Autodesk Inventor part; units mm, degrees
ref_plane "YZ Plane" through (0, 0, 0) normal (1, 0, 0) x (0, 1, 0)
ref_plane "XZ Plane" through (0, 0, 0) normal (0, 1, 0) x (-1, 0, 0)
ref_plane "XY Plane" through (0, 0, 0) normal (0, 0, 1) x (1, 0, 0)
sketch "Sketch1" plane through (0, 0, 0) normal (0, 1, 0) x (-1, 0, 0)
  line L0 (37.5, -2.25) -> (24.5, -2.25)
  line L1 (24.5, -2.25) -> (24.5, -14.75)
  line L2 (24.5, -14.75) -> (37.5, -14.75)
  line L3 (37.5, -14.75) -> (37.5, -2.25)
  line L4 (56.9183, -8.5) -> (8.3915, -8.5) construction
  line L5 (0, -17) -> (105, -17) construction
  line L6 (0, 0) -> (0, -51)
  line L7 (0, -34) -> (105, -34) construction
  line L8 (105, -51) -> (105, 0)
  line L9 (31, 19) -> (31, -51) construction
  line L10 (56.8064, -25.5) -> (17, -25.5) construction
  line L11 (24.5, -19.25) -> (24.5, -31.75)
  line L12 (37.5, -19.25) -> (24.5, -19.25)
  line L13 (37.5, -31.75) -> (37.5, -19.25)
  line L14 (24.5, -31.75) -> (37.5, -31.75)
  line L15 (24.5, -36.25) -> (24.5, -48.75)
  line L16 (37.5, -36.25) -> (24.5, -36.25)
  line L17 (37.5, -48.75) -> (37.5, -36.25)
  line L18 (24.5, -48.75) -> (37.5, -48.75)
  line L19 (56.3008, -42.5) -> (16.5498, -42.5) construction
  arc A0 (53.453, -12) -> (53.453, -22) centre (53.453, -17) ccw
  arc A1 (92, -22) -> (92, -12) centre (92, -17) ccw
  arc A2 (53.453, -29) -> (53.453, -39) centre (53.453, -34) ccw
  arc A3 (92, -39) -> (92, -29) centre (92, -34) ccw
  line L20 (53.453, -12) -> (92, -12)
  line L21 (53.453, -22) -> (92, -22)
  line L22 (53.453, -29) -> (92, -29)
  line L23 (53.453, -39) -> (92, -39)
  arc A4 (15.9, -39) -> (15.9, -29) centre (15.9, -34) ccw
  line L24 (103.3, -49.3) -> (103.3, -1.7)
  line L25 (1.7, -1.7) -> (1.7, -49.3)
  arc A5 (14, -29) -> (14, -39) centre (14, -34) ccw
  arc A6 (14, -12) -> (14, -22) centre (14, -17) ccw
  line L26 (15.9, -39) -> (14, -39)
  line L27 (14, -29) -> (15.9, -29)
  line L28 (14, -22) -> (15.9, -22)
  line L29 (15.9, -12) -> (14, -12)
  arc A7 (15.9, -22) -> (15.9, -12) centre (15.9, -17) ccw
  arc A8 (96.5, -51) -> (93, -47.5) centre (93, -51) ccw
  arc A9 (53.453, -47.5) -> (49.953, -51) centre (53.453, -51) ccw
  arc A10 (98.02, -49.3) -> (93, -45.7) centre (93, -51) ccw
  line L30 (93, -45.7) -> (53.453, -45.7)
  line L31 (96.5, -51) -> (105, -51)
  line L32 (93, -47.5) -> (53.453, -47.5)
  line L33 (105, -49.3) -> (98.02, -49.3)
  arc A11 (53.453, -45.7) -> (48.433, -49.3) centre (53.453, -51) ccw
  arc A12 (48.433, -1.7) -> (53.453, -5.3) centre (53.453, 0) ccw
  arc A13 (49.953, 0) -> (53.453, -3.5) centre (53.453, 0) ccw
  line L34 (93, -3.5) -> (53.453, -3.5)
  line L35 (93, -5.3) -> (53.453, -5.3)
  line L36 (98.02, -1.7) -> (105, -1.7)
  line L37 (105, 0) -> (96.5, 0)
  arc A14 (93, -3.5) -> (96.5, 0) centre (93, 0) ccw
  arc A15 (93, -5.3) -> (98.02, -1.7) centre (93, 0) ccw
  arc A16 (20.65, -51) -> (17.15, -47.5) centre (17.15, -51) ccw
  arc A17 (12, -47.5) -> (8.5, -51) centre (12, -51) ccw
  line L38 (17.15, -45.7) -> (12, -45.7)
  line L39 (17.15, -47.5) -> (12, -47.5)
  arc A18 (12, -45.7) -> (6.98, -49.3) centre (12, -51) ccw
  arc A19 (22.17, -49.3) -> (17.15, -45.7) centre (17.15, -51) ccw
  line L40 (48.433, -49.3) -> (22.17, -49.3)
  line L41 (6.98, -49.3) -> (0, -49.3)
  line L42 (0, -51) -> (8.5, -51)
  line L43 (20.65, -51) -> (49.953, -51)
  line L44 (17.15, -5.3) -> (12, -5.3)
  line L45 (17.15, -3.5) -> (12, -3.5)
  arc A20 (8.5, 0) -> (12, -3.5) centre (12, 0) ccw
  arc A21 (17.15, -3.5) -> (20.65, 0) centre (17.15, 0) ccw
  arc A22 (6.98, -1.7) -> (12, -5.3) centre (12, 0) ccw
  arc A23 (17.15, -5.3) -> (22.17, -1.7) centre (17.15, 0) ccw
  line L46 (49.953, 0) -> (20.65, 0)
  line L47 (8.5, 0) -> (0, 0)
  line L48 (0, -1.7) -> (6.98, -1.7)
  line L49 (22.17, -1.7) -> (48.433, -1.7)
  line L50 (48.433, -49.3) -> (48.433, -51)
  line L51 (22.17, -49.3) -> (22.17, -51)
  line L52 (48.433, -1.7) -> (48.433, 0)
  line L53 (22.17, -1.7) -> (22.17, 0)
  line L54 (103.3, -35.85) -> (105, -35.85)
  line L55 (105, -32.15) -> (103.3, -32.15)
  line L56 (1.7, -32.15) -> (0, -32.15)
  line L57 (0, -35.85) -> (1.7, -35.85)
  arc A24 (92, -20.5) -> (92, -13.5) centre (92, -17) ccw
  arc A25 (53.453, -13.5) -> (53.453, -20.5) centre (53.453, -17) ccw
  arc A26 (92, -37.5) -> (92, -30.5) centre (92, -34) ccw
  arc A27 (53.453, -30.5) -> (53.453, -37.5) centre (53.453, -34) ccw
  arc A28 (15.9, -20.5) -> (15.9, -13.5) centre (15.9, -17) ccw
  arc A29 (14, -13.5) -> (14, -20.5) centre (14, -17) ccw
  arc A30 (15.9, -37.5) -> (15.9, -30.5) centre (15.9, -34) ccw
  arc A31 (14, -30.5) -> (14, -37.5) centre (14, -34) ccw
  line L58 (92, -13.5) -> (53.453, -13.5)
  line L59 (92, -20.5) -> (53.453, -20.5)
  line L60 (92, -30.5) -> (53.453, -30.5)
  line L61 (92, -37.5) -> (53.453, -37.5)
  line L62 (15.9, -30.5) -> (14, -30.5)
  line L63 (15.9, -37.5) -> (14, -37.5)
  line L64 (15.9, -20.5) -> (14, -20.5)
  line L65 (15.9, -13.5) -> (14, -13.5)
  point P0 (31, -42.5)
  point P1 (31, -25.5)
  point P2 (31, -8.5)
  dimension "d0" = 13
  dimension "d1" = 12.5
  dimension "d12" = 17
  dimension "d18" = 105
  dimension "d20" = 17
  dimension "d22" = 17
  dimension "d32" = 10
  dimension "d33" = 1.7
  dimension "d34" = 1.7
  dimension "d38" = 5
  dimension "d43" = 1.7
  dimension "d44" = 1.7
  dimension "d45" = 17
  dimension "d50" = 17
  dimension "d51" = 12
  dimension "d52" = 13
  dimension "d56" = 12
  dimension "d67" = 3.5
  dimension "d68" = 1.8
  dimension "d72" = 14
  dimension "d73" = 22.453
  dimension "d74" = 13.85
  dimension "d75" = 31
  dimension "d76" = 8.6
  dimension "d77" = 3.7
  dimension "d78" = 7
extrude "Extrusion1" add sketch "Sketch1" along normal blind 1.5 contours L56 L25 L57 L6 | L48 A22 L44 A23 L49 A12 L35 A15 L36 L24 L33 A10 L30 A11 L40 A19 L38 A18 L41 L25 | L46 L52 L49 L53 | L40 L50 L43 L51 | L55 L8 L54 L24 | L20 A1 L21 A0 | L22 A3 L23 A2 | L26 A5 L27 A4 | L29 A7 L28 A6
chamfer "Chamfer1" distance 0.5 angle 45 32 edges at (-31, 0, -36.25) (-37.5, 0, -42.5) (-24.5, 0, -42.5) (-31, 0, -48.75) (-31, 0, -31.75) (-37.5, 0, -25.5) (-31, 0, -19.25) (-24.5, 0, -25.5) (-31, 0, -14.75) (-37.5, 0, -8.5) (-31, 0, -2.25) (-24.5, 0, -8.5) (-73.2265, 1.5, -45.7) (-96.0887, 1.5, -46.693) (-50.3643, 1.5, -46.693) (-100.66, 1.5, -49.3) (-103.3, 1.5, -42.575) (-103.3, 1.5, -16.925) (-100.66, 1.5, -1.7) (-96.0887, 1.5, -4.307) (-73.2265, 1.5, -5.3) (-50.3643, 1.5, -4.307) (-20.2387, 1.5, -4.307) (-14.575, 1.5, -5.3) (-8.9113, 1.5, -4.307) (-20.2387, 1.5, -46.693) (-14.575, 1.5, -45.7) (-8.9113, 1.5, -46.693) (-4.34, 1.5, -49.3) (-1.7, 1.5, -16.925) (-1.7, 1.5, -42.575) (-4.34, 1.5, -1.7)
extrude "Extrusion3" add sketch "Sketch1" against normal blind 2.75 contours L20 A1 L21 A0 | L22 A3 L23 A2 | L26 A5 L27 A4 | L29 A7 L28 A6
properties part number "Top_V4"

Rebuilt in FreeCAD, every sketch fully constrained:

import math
import FreeCAD as App
import Part
import Sketcher


def edges_at(feature, points):
    """Names of the edges that pass closest to the given points."""
    edges = feature.Shape.Edges
    near = lambda p: min(range(len(edges)), key=lambda i: edges[i].distToShape(Part.Vertex(*p))[0])
    return sorted({f"Edge{near(p) + 1}" for p in points})


def add_polygon(sketch, points):
    """Adds a closed chain of lines whose ends are joined by coincident constraints."""
    first, n = sketch.GeometryCount, len(points)
    for a, b in zip(points, points[1:] + points[:1]):
        sketch.addGeometry(Part.LineSegment(App.Vector(*a, 0), App.Vector(*b, 0)), False)
    for i in range(n):
        sketch.addConstraint(Sketcher.Constraint("Coincident", first + i, 2, first + (i + 1) % n, 1))

doc = App.newDocument("Part")
params = doc.addObject("Spreadsheet::Sheet", "Params")
for row, (alias, value) in enumerate([
    ("sketch1_radius", "3.5 mm"),
    ("sketch1_width", "13 mm"),
    ("sketch1_width2", "1.7 mm"),
    ("sketch1_height", "3.7 mm"),
    ("sketch1_height2", "12.5 mm"),
    ("pad1_length", "1.5 mm"),
    ("chamfer_size", "0.5 mm"),
    ("sketch2_radius", "5 mm"),
    ("sketch2_radius2", "3.5 mm"),
    ("sketch2_width", "1.9 mm"),
    ("pad2_length", "2.75 mm"),
], start=1):
    params.set(f"A{row}", alias)
    params.set(f"B{row}", "=" + value)
    params.setAlias(f"B{row}", alias)

body = doc.addObject("PartDesign::Body", "Body")

# Sketch on XZ plane
sketch1 = body.newObject("Sketcher::SketchObject", "Sketch")
sketch1.AttachmentSupport = (doc.getObject("XZ_Plane"), [""])
sketch1.MapMode = "FlatFace"
sketch1.addGeometry(Part.LineSegment(App.Vector(-1.7, -32.15, 0), App.Vector(0, -32.15, 0)), False)  # 0
sketch1.addGeometry(Part.LineSegment(App.Vector(0, -32.15, 0), App.Vector(0, -35.85, 0)), False)  # 1
sketch1.addGeometry(Part.LineSegment(App.Vector(0, -35.85, 0), App.Vector(-1.7, -35.85, 0)), False)  # 2
sketch1.addGeometry(Part.LineSegment(App.Vector(-1.7, -35.85, 0), App.Vector(-1.7, -49.3, 0)), False)  # 3
sketch1.addGeometry(Part.LineSegment(App.Vector(-1.7, -49.3, 0), App.Vector(-6.98, -49.3, 0)), False)  # 4
sketch1.addGeometry(Part.ArcOfCircle(Part.Circle(App.Vector(-12, -51, 0), App.Vector(0, 0, 1), 5.3), math.radians(18.708435), math.radians(90)), False)  # 5
sketch1.addGeometry(Part.LineSegment(App.Vector(-12, -45.7, 0), App.Vector(-17.15, -45.7, 0)), False)  # 6
sketch1.addGeometry(Part.ArcOfCircle(Part.Circle(App.Vector(-17.15, -51, 0), App.Vector(0, 0, 1), 5.300038), math.radians(90), math.radians(161.291565)), False)  # 7
sketch1.addGeometry(Part.LineSegment(App.Vector(-22.17, -49.3, 0), App.Vector(-22.17, -51, 0)), False)  # 8
sketch1.addGeometry(Part.LineSegment(App.Vector(-22.17, -51, 0), App.Vector(-48.433, -51, 0)), False)  # 9
sketch1.addGeometry(Part.LineSegment(App.Vector(-48.433, -51, 0), App.Vector(-48.433, -49.3, 0)), False)  # 10
sketch1.addGeometry(Part.ArcOfCircle(Part.Circle(App.Vector(-53.453, -51, 0), App.Vector(0, 0, 1), 5.3), math.radians(18.708435), math.radians(90)), False)  # 11
sketch1.addGeometry(Part.LineSegment(App.Vector(-53.453, -45.7, 0), App.Vector(-93, -45.7, 0)), False)  # 12
sketch1.addGeometry(Part.ArcOfCircle(Part.Circle(App.Vector(-93, -51, 0), App.Vector(0, 0, 1), 5.300038), math.radians(90), math.radians(161.291565)), False)  # 13
sketch1.addGeometry(Part.LineSegment(App.Vector(-98.02, -49.3, 0), App.Vector(-103.3, -49.3, 0)), False)  # 14
sketch1.addGeometry(Part.LineSegment(App.Vector(-103.3, -49.3, 0), App.Vector(-103.3, -35.85, 0)), False)  # 15
sketch1.addGeometry(Part.LineSegment(App.Vector(-103.3, -35.85, 0), App.Vector(-105, -35.85, 0)), False)  # 16
sketch1.addGeometry(Part.LineSegment(App.Vector(-105, -35.85, 0), App.Vector(-105, -32.15, 0)), False)  # 17
sketch1.addGeometry(Part.LineSegment(App.Vector(-105, -32.15, 0), App.Vector(-103.3, -32.15, 0)), False)  # 18
sketch1.addGeometry(Part.LineSegment(App.Vector(-103.3, -32.15, 0), App.Vector(-103.3, -1.7, 0)), False)  # 19
sketch1.addGeometry(Part.LineSegment(App.Vector(-103.3, -1.7, 0), App.Vector(-98.02, -1.7, 0)), False)  # 20
sketch1.addGeometry(Part.ArcOfCircle(Part.Circle(App.Vector(-93, 0, 0), App.Vector(0, 0, 1), 5.3), math.radians(-161.291565), math.radians(-90)), False)  # 21
sketch1.addGeometry(Part.LineSegment(App.Vector(-93, -5.3, 0), App.Vector(-53.453, -5.3, 0)), False)  # 22
sketch1.addGeometry(Part.ArcOfCircle(Part.Circle(App.Vector(-53.453, 0, 0), App.Vector(0, 0, 1), 5.300038), math.radians(-90), math.radians(-18.708435)), False)  # 23
sketch1.addGeometry(Part.LineSegment(App.Vector(-48.433, -1.7, 0), App.Vector(-48.433, 0, 0)), False)  # 24
sketch1.addGeometry(Part.LineSegment(App.Vector(-48.433, 0, 0), App.Vector(-22.17, 0, 0)), False)  # 25
sketch1.addGeometry(Part.LineSegment(App.Vector(-22.17, 0, 0), App.Vector(-22.17, -1.7, 0)), False)  # 26
sketch1.addGeometry(Part.ArcOfCircle(Part.Circle(App.Vector(-17.15, 0, 0), App.Vector(0, 0, 1), 5.3), math.radians(-161.291565), math.radians(-90)), False)  # 27
sketch1.addGeometry(Part.LineSegment(App.Vector(-17.15, -5.3, 0), App.Vector(-12, -5.3, 0)), False)  # 28
sketch1.addGeometry(Part.ArcOfCircle(Part.Circle(App.Vector(-12, 0, 0), App.Vector(0, 0, 1), 5.300038), math.radians(-90), math.radians(-18.708435)), False)  # 29
sketch1.addGeometry(Part.LineSegment(App.Vector(-6.98, -1.7, 0), App.Vector(-1.7, -1.7, 0)), False)  # 30
sketch1.addGeometry(Part.LineSegment(App.Vector(-1.7, -1.7, 0), App.Vector(-1.7, -32.15, 0)), False)  # 31
add_polygon(sketch1, [(-24.5, -48.75), (-24.5, -36.25), (-37.5, -36.25), (-37.5, -48.75)])  # lines 32-35
add_polygon(sketch1, [(-24.5, -31.75), (-24.5, -19.25), (-37.5, -19.25), (-37.5, -31.75)])  # lines 36-39
add_polygon(sketch1, [(-24.5, -2.25), (-37.5, -2.25), (-37.5, -14.75), (-24.5, -14.75)])  # lines 40-43
sketch1.addGeometry(Part.LineSegment(App.Vector(-92, -20.5, 0), App.Vector(-53.453, -20.5, 0)), False)  # 44
sketch1.addGeometry(Part.ArcOfCircle(Part.Circle(App.Vector(-53.453, -17, 0), App.Vector(0, 0, 1), 3.5), math.radians(-90), math.radians(90)), False)  # 45
sketch1.addGeometry(Part.LineSegment(App.Vector(-53.453, -13.5, 0), App.Vector(-92, -13.5, 0)), False)  # 46
sketch1.addGeometry(Part.ArcOfCircle(Part.Circle(App.Vector(-92, -17, 0), App.Vector(0, 0, 1), 3.5), math.radians(90), math.radians(270)), False)  # 47
sketch1.addGeometry(Part.ArcOfCircle(Part.Circle(App.Vector(-15.9, -34, 0), App.Vector(0, 0, 1), 3.5), math.radians(90), math.radians(270)), False)  # 48
sketch1.addGeometry(Part.LineSegment(App.Vector(-15.9, -37.5, 0), App.Vector(-14, -37.5, 0)), False)  # 49
sketch1.addGeometry(Part.ArcOfCircle(Part.Circle(App.Vector(-14, -34, 0), App.Vector(0, 0, 1), 3.5), math.radians(-90), math.radians(90)), False)  # 50
sketch1.addGeometry(Part.LineSegment(App.Vector(-14, -30.5, 0), App.Vector(-15.9, -30.5, 0)), False)  # 51
sketch1.addGeometry(Part.ArcOfCircle(Part.Circle(App.Vector(-92, -34, 0), App.Vector(0, 0, 1), 3.5), math.radians(90), math.radians(270)), False)  # 52
sketch1.addGeometry(Part.LineSegment(App.Vector(-92, -37.5, 0), App.Vector(-53.453, -37.5, 0)), False)  # 53
sketch1.addGeometry(Part.ArcOfCircle(Part.Circle(App.Vector(-53.453, -34, 0), App.Vector(0, 0, 1), 3.5), math.radians(-90), math.radians(90)), False)  # 54
sketch1.addGeometry(Part.LineSegment(App.Vector(-53.453, -30.5, 0), App.Vector(-92, -30.5, 0)), False)  # 55
sketch1.addGeometry(Part.ArcOfCircle(Part.Circle(App.Vector(-15.9, -17, 0), App.Vector(0, 0, 1), 3.5), math.radians(90), math.radians(270)), False)  # 56
sketch1.addGeometry(Part.LineSegment(App.Vector(-15.9, -20.5, 0), App.Vector(-14, -20.5, 0)), False)  # 57
sketch1.addGeometry(Part.ArcOfCircle(Part.Circle(App.Vector(-14, -17, 0), App.Vector(0, 0, 1), 3.5), math.radians(-90), math.radians(90)), False)  # 58
sketch1.addGeometry(Part.LineSegment(App.Vector(-14, -13.5, 0), App.Vector(-15.9, -13.5, 0)), False)  # 59
sketch1.addConstraint([
    Sketcher.Constraint("Coincident", 0, 2, 1, 1),
    Sketcher.Constraint("Coincident", 1, 2, 2, 1),
    Sketcher.Constraint("Coincident", 2, 2, 3, 1),
    Sketcher.Constraint("Coincident", 3, 2, 4, 1),
    Sketcher.Constraint("Coincident", 4, 2, 5, 1),
    Sketcher.Constraint("Tangent", 5, 2, 6, 1),
    Sketcher.Constraint("Tangent", 6, 2, 7, 1),
    Sketcher.Constraint("Coincident", 7, 2, 8, 1),
    Sketcher.Constraint("Coincident", 8, 2, 9, 1),
    Sketcher.Constraint("Coincident", 9, 2, 10, 1),
    Sketcher.Constraint("Coincident", 10, 2, 11, 1),
    Sketcher.Constraint("Tangent", 11, 2, 12, 1),
    Sketcher.Constraint("Tangent", 12, 2, 13, 1),
    Sketcher.Constraint("Coincident", 13, 2, 14, 1),
    Sketcher.Constraint("Coincident", 14, 2, 15, 1),
    Sketcher.Constraint("Coincident", 15, 2, 16, 1),
    Sketcher.Constraint("Coincident", 16, 2, 17, 1),
    Sketcher.Constraint("Coincident", 17, 2, 18, 1),
    Sketcher.Constraint("Coincident", 18, 2, 19, 1),
    Sketcher.Constraint("Coincident", 19, 2, 20, 1),
    Sketcher.Constraint("Coincident", 20, 2, 21, 1),
    Sketcher.Constraint("Tangent", 21, 2, 22, 1),
    Sketcher.Constraint("Tangent", 22, 2, 23, 1),
    Sketcher.Constraint("Coincident", 23, 2, 24, 1),
    Sketcher.Constraint("Coincident", 24, 2, 25, 1),
    Sketcher.Constraint("Coincident", 25, 2, 26, 1),
    Sketcher.Constraint("Coincident", 26, 2, 27, 1),
    Sketcher.Constraint("Tangent", 27, 2, 28, 1),
    Sketcher.Constraint("Tangent", 28, 2, 29, 1),
    Sketcher.Constraint("Coincident", 29, 2, 30, 1),
    Sketcher.Constraint("Coincident", 30, 2, 31, 1),
    Sketcher.Constraint("Coincident", 31, 2, 0, 1),
    Sketcher.Constraint("Tangent", 44, 2, 45, 1),
    Sketcher.Constraint("Tangent", 45, 2, 46, 1),
    Sketcher.Constraint("Tangent", 46, 2, 47, 1),
    Sketcher.Constraint("Tangent", 47, 2, 44, 1),
    Sketcher.Constraint("Tangent", 48, 2, 49, 1),
    Sketcher.Constraint("Tangent", 49, 2, 50, 1),
    Sketcher.Constraint("Tangent", 50, 2, 51, 1),
    Sketcher.Constraint("Tangent", 51, 2, 48, 1),
    Sketcher.Constraint("Tangent", 52, 2, 53, 1),
    Sketcher.Constraint("Tangent", 53, 2, 54, 1),
    Sketcher.Constraint("Tangent", 54, 2, 55, 1),
    Sketcher.Constraint("Tangent", 55, 2, 52, 1),
    Sketcher.Constraint("Tangent", 56, 2, 57, 1),
    Sketcher.Constraint("Tangent", 57, 2, 58, 1),
    Sketcher.Constraint("Tangent", 58, 2, 59, 1),
    Sketcher.Constraint("Tangent", 59, 2, 56, 1),
    Sketcher.Constraint("Horizontal", 0),
    Sketcher.Constraint("Vertical", 1),
    Sketcher.Constraint("Horizontal", 2),
    Sketcher.Constraint("Vertical", 3),
    Sketcher.Constraint("Horizontal", 4),
    Sketcher.Constraint("Horizontal", 6),
    Sketcher.Constraint("Vertical", 8),
    Sketcher.Constraint("Horizontal", 9),
    Sketcher.Constraint("Vertical", 10),
    Sketcher.Constraint("Horizontal", 12),
    Sketcher.Constraint("Horizontal", 14),
    Sketcher.Constraint("Vertical", 15),
    Sketcher.Constraint("Horizontal", 16),
    Sketcher.Constraint("Vertical", 17),
    Sketcher.Constraint("Horizontal", 18),
    Sketcher.Constraint("Vertical", 19),
    Sketcher.Constraint("Horizontal", 20),
    Sketcher.Constraint("Horizontal", 22),
    Sketcher.Constraint("Vertical", 24),
    Sketcher.Constraint("Horizontal", 25),
    Sketcher.Constraint("Vertical", 26),
    Sketcher.Constraint("Horizontal", 28),
    Sketcher.Constraint("Horizontal", 30),
    Sketcher.Constraint("Vertical", 31),
    Sketcher.Constraint("Vertical", 32),
    Sketcher.Constraint("Horizontal", 33),
    Sketcher.Constraint("Vertical", 34),
    Sketcher.Constraint("Horizontal", 35),
    Sketcher.Constraint("Vertical", 36),
    Sketcher.Constraint("Horizontal", 37),
    Sketcher.Constraint("Vertical", 38),
    Sketcher.Constraint("Horizontal", 39),
    Sketcher.Constraint("Horizontal", 40),
    Sketcher.Constraint("Vertical", 41),
    Sketcher.Constraint("Horizontal", 42),
    Sketcher.Constraint("Vertical", 43),
    Sketcher.Constraint("Horizontal", 44),
    Sketcher.Constraint("Horizontal", 46),
    Sketcher.Constraint("Horizontal", 49),
    Sketcher.Constraint("Horizontal", 51),
    Sketcher.Constraint("Horizontal", 53),
    Sketcher.Constraint("Horizontal", 55),
    Sketcher.Constraint("Horizontal", 57),
    Sketcher.Constraint("Horizontal", 59),
    Sketcher.Constraint("Equal", 5, 7),
    Sketcher.Constraint("Equal", 7, 11),
    Sketcher.Constraint("Equal", 11, 13),
    Sketcher.Constraint("Equal", 13, 21),
    Sketcher.Constraint("Equal", 21, 23),
    Sketcher.Constraint("Equal", 23, 27),
    Sketcher.Constraint("Equal", 27, 29),
    Sketcher.Constraint("Equal", 47, 48),
    Sketcher.Constraint("Equal", 50, 52),
    Sketcher.Constraint("Equal", 54, 56),
    Sketcher.Constraint("PointOnObject", 21, 3, -1),
    Sketcher.Constraint("PointOnObject", 27, 3, -1),
    Sketcher.Constraint("PointOnObject", 0, 2, -2),
    Sketcher.Constraint("PointOnObject", 24, 2, -1),
    Sketcher.Constraint("Horizontal", 7, 3, 11, 3),
    Sketcher.Constraint("Horizontal", 50, 3, 52, 3),
    Sketcher.Constraint("Horizontal", 47, 3, 56, 3),
    Sketcher.Constraint("Horizontal", 4, 2, 7, 2),
    Sketcher.Constraint("Horizontal", 13, 3, 8, 2),
    Sketcher.Constraint("Horizontal", 7, 2, 10, 2),
    Sketcher.Constraint("Horizontal", 10, 2, 13, 2),
    Sketcher.Constraint("Horizontal", 2, 2, 15, 2),
    Sketcher.Constraint("Horizontal", 0, 2, 17, 2),
    Sketcher.Constraint("Horizontal", 20, 2, 23, 2),
    Sketcher.Constraint("Horizontal", 23, 2, 26, 2),
    Sketcher.Constraint("Horizontal", 26, 2, 29, 2),
    Sketcher.Constraint("Vertical", 13, 3, 21, 3),
    Sketcher.Constraint("Vertical", 11, 3, 23, 3),
    Sketcher.Constraint("Vertical", 7, 3, 27, 3),
    Sketcher.Constraint("Vertical", 5, 3, 29, 3),
    Sketcher.Constraint("Vertical", 23, 3, 45, 3),
    Sketcher.Constraint("Vertical", 47, 3, 52, 3),
    Sketcher.Constraint("Vertical", 45, 3, 54, 3),
    Sketcher.Constraint("Vertical", 48, 3, 56, 3),
    Sketcher.Constraint("Vertical", 50, 3, 58, 3),
    Sketcher.Constraint("Vertical", 15, 2, 18, 2),
    Sketcher.Constraint("Vertical", 13, 2, 20, 2),
    Sketcher.Constraint("Vertical", 3, 2, 30, 2),
    Sketcher.Constraint("Vertical", 35, 2, 36, 2),
    Sketcher.Constraint("Vertical", 34, 2, 37, 2),
    Sketcher.Constraint("Vertical", 38, 2, 40, 2),
    Sketcher.Constraint("Vertical", 39, 2, 42, 2),
    Sketcher.Constraint("Equal", 4, 14),
    Sketcher.Constraint("Equal", 2, 16),
    Sketcher.Constraint("Equal", 18, 8),
    Sketcher.Constraint("Equal", 34, 36),
    Sketcher.Constraint("Equal", 38, 41),
    Sketcher.Constraint("Radius", 45, 3.5),
    Sketcher.Constraint("DistanceX", 33, 2, 33, 1, 13.0),
    Sketcher.Constraint("DistanceX", 0, 1, 0, 2, 1.7),
    Sketcher.Constraint("DistanceY", 1, 2, 1, 1, 3.7),
    Sketcher.Constraint("DistanceY", 32, 1, 32, 2, 12.5),
    Sketcher.Constraint("DistanceX", 5, 3, -1, 1, 12.0),
    Sketcher.Constraint("DistanceY", 45, 3, -1, 1, 17.0),
    Sketcher.Constraint("DistanceX", 50, 3, -1, 1, 14.0),
    Sketcher.Constraint("DistanceX", 16, 2, -1, 1, 105.0),
    Sketcher.Constraint("Radius", 5, 5.3),
    Sketcher.Constraint("DistanceX", 49, 1, 49, 2, 1.9),
    Sketcher.Constraint("DistanceY", 5, 3, -1, 1, 51.0),
    Sketcher.Constraint("DistanceX", 47, 3, -1, 1, 92.0),
    Sketcher.Constraint("DistanceY", 48, 3, -1, 1, 34.0),
    Sketcher.Constraint("DistanceX", 6, 2, 6, 1, 5.15),
    Sketcher.Constraint("DistanceY", 3, 2, 3, 1, 13.45),
    Sketcher.Constraint("DistanceX", 32, 2, -1, 1, 24.5),
    Sketcher.Constraint("DistanceX", 9, 2, 9, 1, 26.263),
    Sketcher.Constraint("DistanceY", 32, 2, -1, 1, 36.25),
    Sketcher.Constraint("DistanceY", 36, 2, -1, 1, 19.25),
    Sketcher.Constraint("DistanceY", 40, 2, -1, 1, 2.25),
])
sketch1.setExpression("Constraints[151]", "Params.sketch1_radius")
sketch1.setExpression("Constraints[152]", "Params.sketch1_width")
sketch1.setExpression("Constraints[153]", "Params.sketch1_width2")
sketch1.setExpression("Constraints[154]", "Params.sketch1_height")
sketch1.setExpression("Constraints[155]", "Params.sketch1_height2")
pad1 = body.newObject("PartDesign::Pad", "Pad")
pad1.Profile = sketch1
pad1.setExpression("Length", "Params.pad1_length")
pad1.Reversed = True
doc.recompute()

chamfer = body.newObject("PartDesign::Chamfer", "Chamfer")
chamfer.Base = (pad1, edges_at(pad1, [
    (-31, 0, -36.25),
    (-37.5, 0, -42.5),
    (-24.5, 0, -42.5),
    (-31, 0, -48.75),
    (-31, 0, -31.75),
    (-37.5, 0, -25.5),
    (-31, 0, -19.25),
    (-24.5, 0, -25.5),
    (-31, 0, -14.75),
    (-37.5, 0, -8.5),
    (-31, 0, -2.25),
    (-24.5, 0, -8.5),
    (-73.227, 1.5, -45.7),
    (-96.089, 1.5, -46.693),
    (-50.364, 1.5, -46.693),
    (-100.66, 1.5, -49.3),
    (-103.3, 1.5, -42.575),
    (-103.3, 1.5, -16.925),
    (-100.66, 1.5, -1.7),
    (-96.089, 1.5, -4.307),
    (-73.227, 1.5, -5.3),
    (-50.364, 1.5, -4.307),
    (-20.239, 1.5, -4.307),
    (-14.575, 1.5, -5.3),
    (-8.911, 1.5, -4.307),
    (-20.239, 1.5, -46.693),
    (-14.575, 1.5, -45.7),
    (-8.911, 1.5, -46.693),
    (-4.34, 1.5, -49.3),
    (-1.7, 1.5, -16.925),
    (-1.7, 1.5, -42.575),
    (-4.34, 1.5, -1.7),
]))
chamfer.setExpression("Size", "Params.chamfer_size")

# Sketch on XZ plane
sketch2 = body.newObject("Sketcher::SketchObject", "Sketch001")
sketch2.AttachmentSupport = (doc.getObject("XZ_Plane"), [""])
sketch2.MapMode = "FlatFace"
sketch2.addGeometry([
    Part.LineSegment(App.Vector(-92, -12, 0), App.Vector(-53.453, -12, 0)),  # 0
    Part.ArcOfCircle(Part.Circle(App.Vector(-53.453, -17, 0), App.Vector(0, 0, 1), 5), math.radians(-90), math.radians(90)),  # 1
    Part.LineSegment(App.Vector(-53.453, -22, 0), App.Vector(-92, -22, 0)),  # 2
    Part.ArcOfCircle(Part.Circle(App.Vector(-92, -17, 0), App.Vector(0, 0, 1), 5), math.radians(90), math.radians(270)),  # 3
    Part.ArcOfCircle(Part.Circle(App.Vector(-92, -17, 0), App.Vector(0, 0, 1), 3.5), math.radians(90), math.radians(270)),  # 4
    Part.LineSegment(App.Vector(-92, -20.5, 0), App.Vector(-53.453, -20.5, 0)),  # 5
    Part.ArcOfCircle(Part.Circle(App.Vector(-53.453, -17, 0), App.Vector(0, 0, 1), 3.5), math.radians(-90), math.radians(90)),  # 6
    Part.LineSegment(App.Vector(-53.453, -13.5, 0), App.Vector(-92, -13.5, 0)),  # 7
    Part.LineSegment(App.Vector(-92, -29, 0), App.Vector(-53.453, -29, 0)),  # 8
    Part.ArcOfCircle(Part.Circle(App.Vector(-53.453, -34, 0), App.Vector(0, 0, 1), 5), math.radians(-90), math.radians(90)),  # 9
    Part.LineSegment(App.Vector(-53.453, -39, 0), App.Vector(-92, -39, 0)),  # 10
    Part.ArcOfCircle(Part.Circle(App.Vector(-92, -34, 0), App.Vector(0, 0, 1), 5), math.radians(90), math.radians(270)),  # 11
    Part.ArcOfCircle(Part.Circle(App.Vector(-92, -34, 0), App.Vector(0, 0, 1), 3.5), math.radians(90), math.radians(270)),  # 12
    Part.LineSegment(App.Vector(-92, -37.5, 0), App.Vector(-53.453, -37.5, 0)),  # 13
    Part.ArcOfCircle(Part.Circle(App.Vector(-53.453, -34, 0), App.Vector(0, 0, 1), 3.5), math.radians(-90), math.radians(90)),  # 14
    Part.LineSegment(App.Vector(-53.453, -30.5, 0), App.Vector(-92, -30.5, 0)),  # 15
    Part.LineSegment(App.Vector(-14, -39, 0), App.Vector(-15.9, -39, 0)),  # 16
    Part.ArcOfCircle(Part.Circle(App.Vector(-15.9, -34, 0), App.Vector(0, 0, 1), 5), math.radians(90), math.radians(270)),  # 17
    Part.LineSegment(App.Vector(-15.9, -29, 0), App.Vector(-14, -29, 0)),  # 18
    Part.ArcOfCircle(Part.Circle(App.Vector(-14, -34, 0), App.Vector(0, 0, 1), 5), math.radians(-90), math.radians(90)),  # 19
    Part.ArcOfCircle(Part.Circle(App.Vector(-15.9, -34, 0), App.Vector(0, 0, 1), 3.5), math.radians(90), math.radians(270)),  # 20
    Part.LineSegment(App.Vector(-15.9, -37.5, 0), App.Vector(-14, -37.5, 0)),  # 21
    Part.ArcOfCircle(Part.Circle(App.Vector(-14, -34, 0), App.Vector(0, 0, 1), 3.5), math.radians(-90), math.radians(90)),  # 22
    Part.LineSegment(App.Vector(-14, -30.5, 0), App.Vector(-15.9, -30.5, 0)),  # 23
    Part.LineSegment(App.Vector(-15.9, -12, 0), App.Vector(-14, -12, 0)),  # 24
    Part.ArcOfCircle(Part.Circle(App.Vector(-14, -17, 0), App.Vector(0, 0, 1), 5), math.radians(-90), math.radians(90)),  # 25
    Part.LineSegment(App.Vector(-14, -22, 0), App.Vector(-15.9, -22, 0)),  # 26
    Part.ArcOfCircle(Part.Circle(App.Vector(-15.9, -17, 0), App.Vector(0, 0, 1), 5), math.radians(90), math.radians(270)),  # 27
    Part.ArcOfCircle(Part.Circle(App.Vector(-15.9, -17, 0), App.Vector(0, 0, 1), 3.5), math.radians(90), math.radians(270)),  # 28
    Part.LineSegment(App.Vector(-15.9, -20.5, 0), App.Vector(-14, -20.5, 0)),  # 29
    Part.ArcOfCircle(Part.Circle(App.Vector(-14, -17, 0), App.Vector(0, 0, 1), 3.5), math.radians(-90), math.radians(90)),  # 30
    Part.LineSegment(App.Vector(-14, -13.5, 0), App.Vector(-15.9, -13.5, 0)),  # 31
], False)
sketch2.addConstraint([
    Sketcher.Constraint("Tangent", 0, 2, 1, 2),
    Sketcher.Constraint("Tangent", 1, 1, 2, 1),
    Sketcher.Constraint("Tangent", 2, 2, 3, 2),
    Sketcher.Constraint("Tangent", 3, 1, 0, 1),
    Sketcher.Constraint("Tangent", 4, 2, 5, 1),
    Sketcher.Constraint("Tangent", 5, 2, 6, 1),
    Sketcher.Constraint("Tangent", 6, 2, 7, 1),
    Sketcher.Constraint("Tangent", 7, 2, 4, 1),
    Sketcher.Constraint("Tangent", 8, 2, 9, 2),
    Sketcher.Constraint("Tangent", 9, 1, 10, 1),
    Sketcher.Constraint("Tangent", 10, 2, 11, 2),
    Sketcher.Constraint("Tangent", 11, 1, 8, 1),
    Sketcher.Constraint("Tangent", 12, 2, 13, 1),
    Sketcher.Constraint("Tangent", 13, 2, 14, 1),
    Sketcher.Constraint("Tangent", 14, 2, 15, 1),
    Sketcher.Constraint("Tangent", 15, 2, 12, 1),
    Sketcher.Constraint("Tangent", 16, 2, 17, 2),
    Sketcher.Constraint("Tangent", 17, 1, 18, 1),
    Sketcher.Constraint("Tangent", 18, 2, 19, 2),
    Sketcher.Constraint("Tangent", 19, 1, 16, 1),
    Sketcher.Constraint("Tangent", 20, 2, 21, 1),
    Sketcher.Constraint("Tangent", 21, 2, 22, 1),
    Sketcher.Constraint("Tangent", 22, 2, 23, 1),
    Sketcher.Constraint("Tangent", 23, 2, 20, 1),
    Sketcher.Constraint("Tangent", 24, 2, 25, 2),
    Sketcher.Constraint("Tangent", 25, 1, 26, 1),
    Sketcher.Constraint("Tangent", 26, 2, 27, 2),
    Sketcher.Constraint("Tangent", 27, 1, 24, 1),
    Sketcher.Constraint("Tangent", 28, 2, 29, 1),
    Sketcher.Constraint("Tangent", 29, 2, 30, 1),
    Sketcher.Constraint("Tangent", 30, 2, 31, 1),
    Sketcher.Constraint("Tangent", 31, 2, 28, 1),
    Sketcher.Constraint("Horizontal", 0),
    Sketcher.Constraint("Horizontal", 2),
    Sketcher.Constraint("Horizontal", 5),
    Sketcher.Constraint("Horizontal", 7),
    Sketcher.Constraint("Horizontal", 8),
    Sketcher.Constraint("Horizontal", 10),
    Sketcher.Constraint("Horizontal", 13),
    Sketcher.Constraint("Horizontal", 15),
    Sketcher.Constraint("Horizontal", 16),
    Sketcher.Constraint("Horizontal", 18),
    Sketcher.Constraint("Horizontal", 21),
    Sketcher.Constraint("Horizontal", 23),
    Sketcher.Constraint("Horizontal", 24),
    Sketcher.Constraint("Horizontal", 26),
    Sketcher.Constraint("Horizontal", 29),
    Sketcher.Constraint("Horizontal", 31),
    Sketcher.Constraint("Coincident", 4, 3, 3, 3),
    Sketcher.Constraint("Coincident", 12, 3, 11, 3),
    Sketcher.Constraint("Coincident", 20, 3, 17, 3),
    Sketcher.Constraint("Coincident", 28, 3, 27, 3),
    Sketcher.Constraint("Equal", 3, 9),
    Sketcher.Constraint("Equal", 6, 12),
    Sketcher.Constraint("Equal", 11, 17),
    Sketcher.Constraint("Equal", 14, 20),
    Sketcher.Constraint("Equal", 19, 25),
    Sketcher.Constraint("Equal", 22, 28),
    Sketcher.Constraint("Horizontal", 14, 3, 17, 3),
    Sketcher.Constraint("Horizontal", 6, 3, 25, 3),
    Sketcher.Constraint("Vertical", 6, 3, 9, 3),
    Sketcher.Constraint("Vertical", 4, 3, 11, 3),
    Sketcher.Constraint("Vertical", 6, 3, 14, 3),
    Sketcher.Constraint("Vertical", 22, 3, 25, 3),
    Sketcher.Constraint("Vertical", 20, 3, 27, 3),
    Sketcher.Constraint("Vertical", 22, 3, 30, 3),
    Sketcher.Constraint("Vertical", 14, 3, 0, 2),
    Sketcher.Constraint("Vertical", 30, 3, 18, 2),
    Sketcher.Constraint("Radius", 1, 5.0),
    Sketcher.Constraint("Radius", 4, 3.5),
    Sketcher.Constraint("DistanceY", 1, 3, -1, 1, 17.0),
    Sketcher.Constraint("DistanceX", 19, 3, -1, 1, 14.0),
    Sketcher.Constraint("DistanceY", 9, 3, 1, 3, 17.0),
    Sketcher.Constraint("DistanceX", 16, 2, 16, 1, 1.9),
    Sketcher.Constraint("DistanceX", 3, 3, -1, 1, 92.0),
    Sketcher.Constraint("DistanceX", 0, 1, 0, 2, 38.547),
])
sketch2.setExpression("Constraints[68]", "Params.sketch2_radius")
sketch2.setExpression("Constraints[69]", "Params.sketch2_radius2")
sketch2.setExpression("Constraints[73]", "Params.sketch2_width")
pad2 = body.newObject("PartDesign::Pad", "Pad001")
pad2.Profile = sketch2
pad2.setExpression("Length", "Params.pad2_length")

doc.recompute()
